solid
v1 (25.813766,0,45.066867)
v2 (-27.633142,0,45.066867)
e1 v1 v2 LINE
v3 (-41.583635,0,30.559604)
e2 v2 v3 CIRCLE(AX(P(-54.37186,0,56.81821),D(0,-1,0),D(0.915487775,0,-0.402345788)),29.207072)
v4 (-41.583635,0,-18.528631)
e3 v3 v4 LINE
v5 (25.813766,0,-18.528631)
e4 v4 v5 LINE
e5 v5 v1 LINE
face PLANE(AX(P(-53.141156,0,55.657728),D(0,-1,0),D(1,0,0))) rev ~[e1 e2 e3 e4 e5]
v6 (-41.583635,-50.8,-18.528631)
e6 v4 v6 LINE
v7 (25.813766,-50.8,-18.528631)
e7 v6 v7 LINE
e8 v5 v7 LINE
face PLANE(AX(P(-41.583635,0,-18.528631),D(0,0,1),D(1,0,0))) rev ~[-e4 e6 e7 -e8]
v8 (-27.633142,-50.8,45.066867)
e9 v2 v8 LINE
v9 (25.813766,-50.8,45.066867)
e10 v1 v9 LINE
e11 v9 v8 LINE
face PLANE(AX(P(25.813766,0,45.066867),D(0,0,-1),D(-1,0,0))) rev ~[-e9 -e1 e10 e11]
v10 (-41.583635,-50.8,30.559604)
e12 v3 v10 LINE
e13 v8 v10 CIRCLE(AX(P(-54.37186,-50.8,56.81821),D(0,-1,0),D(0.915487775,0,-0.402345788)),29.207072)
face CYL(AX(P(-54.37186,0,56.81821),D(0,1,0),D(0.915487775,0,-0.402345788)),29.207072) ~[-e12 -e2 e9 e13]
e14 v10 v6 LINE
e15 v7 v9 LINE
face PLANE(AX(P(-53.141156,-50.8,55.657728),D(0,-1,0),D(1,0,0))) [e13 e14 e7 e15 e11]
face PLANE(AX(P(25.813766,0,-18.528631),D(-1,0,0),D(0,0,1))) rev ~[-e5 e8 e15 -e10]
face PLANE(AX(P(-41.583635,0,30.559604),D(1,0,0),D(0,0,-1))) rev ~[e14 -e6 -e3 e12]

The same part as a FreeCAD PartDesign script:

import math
import FreeCAD as App
import Part
import Sketcher
Q = App.Units.Quantity

doc = App.newDocument("Part")
body = doc.addObject("PartDesign::Body", "Body")

sketch1 = body.newObject("Sketcher::SketchObject", "Sketch")
sketch1.AttachmentSupport = (doc.getObject("XZ_Plane"), [""])
sketch1.MapMode = "FlatFace"
sketch1.addGeometry([
    Part.ArcOfCircle(Part.Circle(App.Vector(-54, 57, 0), App.Vector(0, 0, 1), 29), math.radians(-24), math.radians(296)),
    Part.LineSegment(App.Vector(-42, 31, 0), App.Vector(-42, -19, 0)),
    Part.LineSegment(App.Vector(-42, -19, 0), App.Vector(26, -19, 0)),
    Part.LineSegment(App.Vector(26, -19, 0), App.Vector(26, 45, 0)),
    Part.LineSegment(App.Vector(26, 45, 0), App.Vector(-28, 45, 0)),
], False)
sketch1.addConstraint([
    Sketcher.Constraint("Coincident", 0, 2, 1, 1),
    Sketcher.Constraint("Coincident", 1, 2, 2, 1),
    Sketcher.Constraint("Coincident", 2, 2, 3, 1),
    Sketcher.Constraint("Coincident", 3, 2, 4, 1),
    Sketcher.Constraint("Coincident", 4, 2, 0, 1),
    Sketcher.Constraint("Vertical", 1),
    Sketcher.Constraint("Horizontal", 2),
    Sketcher.Constraint("Vertical", 3),
    Sketcher.Constraint("Horizontal", 4),
    Sketcher.Constraint("DistanceX", 2, 1, 2, 2, Q("67.397401 mm")),
    Sketcher.Constraint("Radius", 0, Q("29.207072 mm")),
    Sketcher.Constraint("DistanceX", 4, 2, 4, 1, Q("53.446908 mm")),
    Sketcher.Constraint("DistanceY", 1, 2, 1, 1, Q("49.088235 mm")),
    Sketcher.Constraint("DistanceY", 3, 1, 3, 2, Q("63.595498 mm")),
    Sketcher.Constraint("DistanceX", 0, 3, -1, 1, Q("54.37186 mm")),
    Sketcher.Constraint("DistanceY", -1, 1, 0, 3, Q("56.81821 mm")),
])
pad1 = body.newObject("PartDesign::Pad", "Pad")
pad1.Profile = sketch1
pad1.Length = Q("2 in")

doc.recompute()
